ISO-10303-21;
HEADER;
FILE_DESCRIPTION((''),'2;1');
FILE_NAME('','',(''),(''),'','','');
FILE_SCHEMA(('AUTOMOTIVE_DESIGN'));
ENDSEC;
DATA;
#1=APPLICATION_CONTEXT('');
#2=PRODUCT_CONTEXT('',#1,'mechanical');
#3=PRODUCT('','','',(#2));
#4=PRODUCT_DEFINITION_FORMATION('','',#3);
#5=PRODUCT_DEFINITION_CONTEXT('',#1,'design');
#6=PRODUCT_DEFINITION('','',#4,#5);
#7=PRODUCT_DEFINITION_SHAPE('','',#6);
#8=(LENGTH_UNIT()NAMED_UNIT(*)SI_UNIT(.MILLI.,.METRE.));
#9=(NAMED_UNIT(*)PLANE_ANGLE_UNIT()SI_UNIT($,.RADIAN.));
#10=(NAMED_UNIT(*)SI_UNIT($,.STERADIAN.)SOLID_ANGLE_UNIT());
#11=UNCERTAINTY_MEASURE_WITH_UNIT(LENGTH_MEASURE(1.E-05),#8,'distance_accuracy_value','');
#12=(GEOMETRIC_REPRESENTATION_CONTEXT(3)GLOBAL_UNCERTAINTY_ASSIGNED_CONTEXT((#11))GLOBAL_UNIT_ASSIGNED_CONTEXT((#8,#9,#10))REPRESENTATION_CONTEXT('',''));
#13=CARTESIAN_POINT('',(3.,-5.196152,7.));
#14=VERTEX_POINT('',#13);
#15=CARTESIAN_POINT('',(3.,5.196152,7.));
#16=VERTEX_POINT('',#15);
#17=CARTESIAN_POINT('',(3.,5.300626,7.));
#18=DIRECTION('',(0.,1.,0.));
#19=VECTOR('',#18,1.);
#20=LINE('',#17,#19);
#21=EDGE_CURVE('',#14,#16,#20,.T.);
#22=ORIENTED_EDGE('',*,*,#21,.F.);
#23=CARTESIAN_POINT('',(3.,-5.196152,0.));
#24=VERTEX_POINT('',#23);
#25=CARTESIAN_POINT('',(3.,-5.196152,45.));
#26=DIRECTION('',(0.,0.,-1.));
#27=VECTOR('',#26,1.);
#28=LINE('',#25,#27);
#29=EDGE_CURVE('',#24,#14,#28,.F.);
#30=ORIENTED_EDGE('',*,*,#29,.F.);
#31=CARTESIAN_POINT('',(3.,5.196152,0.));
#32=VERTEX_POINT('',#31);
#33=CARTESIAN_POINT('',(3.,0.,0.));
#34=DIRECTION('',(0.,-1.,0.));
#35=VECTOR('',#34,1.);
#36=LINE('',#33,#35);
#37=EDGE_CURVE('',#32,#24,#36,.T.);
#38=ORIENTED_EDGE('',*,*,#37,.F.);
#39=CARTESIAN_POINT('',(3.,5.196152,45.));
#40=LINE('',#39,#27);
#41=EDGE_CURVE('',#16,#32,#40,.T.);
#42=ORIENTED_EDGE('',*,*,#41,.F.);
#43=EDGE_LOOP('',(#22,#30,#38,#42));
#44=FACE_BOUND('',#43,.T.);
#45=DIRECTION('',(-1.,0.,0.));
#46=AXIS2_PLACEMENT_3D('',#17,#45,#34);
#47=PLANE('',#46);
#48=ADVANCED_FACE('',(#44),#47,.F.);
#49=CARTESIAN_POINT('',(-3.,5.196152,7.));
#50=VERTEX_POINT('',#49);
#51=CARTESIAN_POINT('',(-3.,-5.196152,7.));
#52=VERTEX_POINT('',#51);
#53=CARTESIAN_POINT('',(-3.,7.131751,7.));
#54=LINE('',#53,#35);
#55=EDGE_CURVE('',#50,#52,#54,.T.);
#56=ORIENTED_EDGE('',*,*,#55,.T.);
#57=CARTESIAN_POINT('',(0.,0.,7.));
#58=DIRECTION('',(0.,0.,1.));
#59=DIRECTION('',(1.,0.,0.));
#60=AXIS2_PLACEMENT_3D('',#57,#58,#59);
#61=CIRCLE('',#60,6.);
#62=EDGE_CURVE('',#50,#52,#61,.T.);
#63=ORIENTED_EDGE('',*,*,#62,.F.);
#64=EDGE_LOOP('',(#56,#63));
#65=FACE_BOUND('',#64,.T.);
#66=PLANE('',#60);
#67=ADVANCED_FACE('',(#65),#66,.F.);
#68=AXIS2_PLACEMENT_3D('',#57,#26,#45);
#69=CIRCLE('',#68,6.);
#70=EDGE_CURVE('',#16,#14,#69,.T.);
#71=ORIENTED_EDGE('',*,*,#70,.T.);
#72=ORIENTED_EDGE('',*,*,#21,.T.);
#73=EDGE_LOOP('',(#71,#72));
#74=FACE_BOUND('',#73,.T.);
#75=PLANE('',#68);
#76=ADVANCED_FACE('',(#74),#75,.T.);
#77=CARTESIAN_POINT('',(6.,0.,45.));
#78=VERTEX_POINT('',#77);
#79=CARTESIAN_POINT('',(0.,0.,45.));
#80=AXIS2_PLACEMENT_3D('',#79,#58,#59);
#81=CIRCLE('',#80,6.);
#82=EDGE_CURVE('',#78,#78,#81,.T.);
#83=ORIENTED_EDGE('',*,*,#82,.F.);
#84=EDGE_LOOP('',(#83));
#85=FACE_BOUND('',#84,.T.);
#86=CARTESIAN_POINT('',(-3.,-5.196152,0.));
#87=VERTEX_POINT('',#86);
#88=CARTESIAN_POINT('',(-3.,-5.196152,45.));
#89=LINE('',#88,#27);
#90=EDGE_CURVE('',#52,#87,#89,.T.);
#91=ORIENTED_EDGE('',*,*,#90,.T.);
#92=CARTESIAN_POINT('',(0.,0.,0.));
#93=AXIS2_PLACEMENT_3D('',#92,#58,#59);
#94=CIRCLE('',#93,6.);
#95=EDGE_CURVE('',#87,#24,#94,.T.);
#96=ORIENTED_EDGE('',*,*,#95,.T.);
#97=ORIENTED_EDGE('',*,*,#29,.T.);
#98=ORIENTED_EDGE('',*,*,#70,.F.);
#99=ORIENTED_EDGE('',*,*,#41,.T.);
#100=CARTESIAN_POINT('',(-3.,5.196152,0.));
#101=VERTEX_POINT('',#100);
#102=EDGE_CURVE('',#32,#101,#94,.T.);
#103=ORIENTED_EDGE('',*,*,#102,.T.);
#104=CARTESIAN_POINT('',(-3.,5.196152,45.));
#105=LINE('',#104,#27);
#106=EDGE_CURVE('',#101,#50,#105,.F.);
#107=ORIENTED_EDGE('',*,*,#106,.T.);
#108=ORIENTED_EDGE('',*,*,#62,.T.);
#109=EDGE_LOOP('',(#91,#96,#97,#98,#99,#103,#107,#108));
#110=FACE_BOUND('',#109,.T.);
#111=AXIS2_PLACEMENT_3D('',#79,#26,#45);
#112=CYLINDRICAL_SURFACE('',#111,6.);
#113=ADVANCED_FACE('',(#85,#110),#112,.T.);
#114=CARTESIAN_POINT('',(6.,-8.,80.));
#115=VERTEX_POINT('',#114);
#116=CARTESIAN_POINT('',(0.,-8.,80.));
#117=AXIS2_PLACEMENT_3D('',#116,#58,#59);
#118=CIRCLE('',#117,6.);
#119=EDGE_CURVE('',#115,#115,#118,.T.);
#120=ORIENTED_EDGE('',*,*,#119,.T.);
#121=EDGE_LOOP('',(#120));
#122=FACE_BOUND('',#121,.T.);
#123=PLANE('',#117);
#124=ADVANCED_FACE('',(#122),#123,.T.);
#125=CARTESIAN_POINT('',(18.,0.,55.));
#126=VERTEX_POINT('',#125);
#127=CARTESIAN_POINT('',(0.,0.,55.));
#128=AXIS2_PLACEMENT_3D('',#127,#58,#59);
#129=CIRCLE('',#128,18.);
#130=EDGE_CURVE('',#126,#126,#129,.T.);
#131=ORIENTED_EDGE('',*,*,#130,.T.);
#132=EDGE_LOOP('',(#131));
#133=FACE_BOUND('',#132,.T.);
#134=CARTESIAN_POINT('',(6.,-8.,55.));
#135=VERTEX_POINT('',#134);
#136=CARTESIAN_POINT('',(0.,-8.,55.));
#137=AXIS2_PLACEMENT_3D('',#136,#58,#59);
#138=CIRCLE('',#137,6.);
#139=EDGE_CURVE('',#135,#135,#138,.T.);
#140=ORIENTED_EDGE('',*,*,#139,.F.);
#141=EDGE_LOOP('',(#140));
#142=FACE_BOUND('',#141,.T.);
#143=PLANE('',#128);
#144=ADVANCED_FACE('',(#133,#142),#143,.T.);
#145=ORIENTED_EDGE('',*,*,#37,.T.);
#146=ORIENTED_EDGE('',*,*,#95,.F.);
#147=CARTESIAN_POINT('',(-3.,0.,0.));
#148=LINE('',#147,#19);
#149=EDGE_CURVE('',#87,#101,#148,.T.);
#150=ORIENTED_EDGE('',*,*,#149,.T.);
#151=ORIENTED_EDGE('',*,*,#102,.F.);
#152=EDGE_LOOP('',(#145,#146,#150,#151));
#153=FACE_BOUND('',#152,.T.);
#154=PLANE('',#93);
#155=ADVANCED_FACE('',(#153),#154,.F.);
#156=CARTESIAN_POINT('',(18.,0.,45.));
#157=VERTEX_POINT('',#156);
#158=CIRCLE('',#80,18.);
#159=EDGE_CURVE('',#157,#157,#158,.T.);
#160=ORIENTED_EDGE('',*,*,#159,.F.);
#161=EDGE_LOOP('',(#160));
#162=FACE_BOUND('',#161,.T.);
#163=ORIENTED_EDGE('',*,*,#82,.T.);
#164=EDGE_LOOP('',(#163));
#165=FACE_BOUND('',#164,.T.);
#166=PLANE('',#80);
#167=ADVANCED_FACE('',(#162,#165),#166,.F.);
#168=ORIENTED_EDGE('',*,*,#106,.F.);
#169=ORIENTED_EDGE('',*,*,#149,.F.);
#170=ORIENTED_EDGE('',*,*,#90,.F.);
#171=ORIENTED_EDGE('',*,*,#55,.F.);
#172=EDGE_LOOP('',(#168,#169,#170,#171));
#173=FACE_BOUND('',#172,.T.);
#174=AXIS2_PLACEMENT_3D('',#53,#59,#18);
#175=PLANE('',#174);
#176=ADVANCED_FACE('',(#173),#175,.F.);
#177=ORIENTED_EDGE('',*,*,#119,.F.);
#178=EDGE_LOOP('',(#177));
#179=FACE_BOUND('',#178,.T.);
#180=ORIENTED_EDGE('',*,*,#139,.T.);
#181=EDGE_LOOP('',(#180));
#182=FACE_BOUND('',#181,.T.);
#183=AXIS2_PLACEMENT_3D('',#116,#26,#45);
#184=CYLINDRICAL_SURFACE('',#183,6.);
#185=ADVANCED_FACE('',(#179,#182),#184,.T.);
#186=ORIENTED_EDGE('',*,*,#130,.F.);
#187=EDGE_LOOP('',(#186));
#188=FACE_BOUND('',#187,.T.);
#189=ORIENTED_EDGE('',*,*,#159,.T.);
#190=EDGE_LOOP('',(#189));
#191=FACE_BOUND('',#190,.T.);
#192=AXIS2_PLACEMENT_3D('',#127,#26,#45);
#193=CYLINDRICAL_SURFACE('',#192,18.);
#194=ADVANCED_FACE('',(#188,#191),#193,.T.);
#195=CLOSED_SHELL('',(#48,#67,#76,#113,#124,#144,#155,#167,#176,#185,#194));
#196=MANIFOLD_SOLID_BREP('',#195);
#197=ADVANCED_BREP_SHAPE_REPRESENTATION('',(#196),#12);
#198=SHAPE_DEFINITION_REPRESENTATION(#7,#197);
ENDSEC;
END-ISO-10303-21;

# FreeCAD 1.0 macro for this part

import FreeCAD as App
import Part
import Sketcher
from FreeCAD import Vector

doc = App.newDocument("Part")
body = doc.addObject("PartDesign::Body", "Body")

# Sketch on XY plane
sketch1 = body.newObject("Sketcher::SketchObject", "Sketch")
sketch1.AttachmentSupport = (doc.getObject("XY_Plane"), [""])
sketch1.MapMode = "FlatFace"
sketch1.addGeometry(Part.Circle(Vector(0, 0, 0), Vector(0, 0, 1), 6), False)
sketch1.addConstraint(Sketcher.Constraint("Coincident", 0, 3, -1, 1))
sketch1.addConstraint(Sketcher.Constraint("Diameter", 0, 12.0))
pad1 = body.newObject("PartDesign::Pad", "Pad")
pad1.Profile = sketch1
pad1.Length = 45

# Sketch on XY plane
sketch2 = body.newObject("Sketcher::SketchObject", "Sketch001")
sketch2.AttachmentSupport = (doc.getObject("XY_Plane"), [""])
sketch2.MapMode = "FlatFace"
sketch2.AttachmentOffset = App.Placement(Vector(0, 0, 45), App.Rotation())
sketch2.addGeometry(Part.Circle(Vector(0, 0, 0), Vector(0, 0, 1), 18), False)
sketch2.addConstraint(Sketcher.Constraint("Coincident", 0, 3, -1, 1))
sketch2.addConstraint(Sketcher.Constraint("Diameter", 0, 36.0))
pad2 = body.newObject("PartDesign::Pad", "Pad001")
pad2.Profile = sketch2
pad2.Length = 10

# Sketch on XY plane
sketch3 = body.newObject("Sketcher::SketchObject", "Sketch002")
sketch3.AttachmentSupport = (doc.getObject("XY_Plane"), [""])
sketch3.MapMode = "FlatFace"
sketch3.AttachmentOffset = App.Placement(Vector(0, 0, 55), App.Rotation())
sketch3.addGeometry(Part.Circle(Vector(0, -8, 0), Vector(0, 0, 1), 6), False)
sketch3.addConstraint(Sketcher.Constraint("PointOnObject", 0, 3, -2))
sketch3.addConstraint(Sketcher.Constraint("Diameter", 0, 12.0))
sketch3.addConstraint(Sketcher.Constraint("DistanceY", 0, 3, -1, 1, 8.0))
pad3 = body.newObject("PartDesign::Pad", "Pad002")
pad3.Profile = sketch3
pad3.Length = 25

# Sketch on XY plane
sketch4 = body.newObject("Sketcher::SketchObject", "Sketch003")
sketch4.AttachmentSupport = (doc.getObject("XY_Plane"), [""])
sketch4.MapMode = "FlatFace"
sketch4.addGeometry(Part.LineSegment(Vector(7.5, 5.3, 0), Vector(7.5, -6.2, 0)), False)
sketch4.addGeometry(Part.LineSegment(Vector(7.5, -6.2, 0), Vector(3, -6.2, 0)), False)
sketch4.addGeometry(Part.LineSegment(Vector(3, -6.2, 0), Vector(3, 5.3, 0)), False)
sketch4.addGeometry(Part.LineSegment(Vector(3, 5.3, 0), Vector(7.5, 5.3, 0)), False)
sketch4.addGeometry(Part.LineSegment(Vector(-3, 7.1, 0), Vector(-3, -8.5, 0)), False)
sketch4.addGeometry(Part.LineSegment(Vector(-3, -8.5, 0), Vector(-9.1, -8.5, 0)), False)
sketch4.addGeometry(Part.LineSegment(Vector(-9.1, -8.5, 0), Vector(-9.1, 7.1, 0)), False)
sketch4.addGeometry(Part.LineSegment(Vector(-9.1, 7.1, 0), Vector(-3, 7.1, 0)), False)
sketch4.addConstraint(Sketcher.Constraint("Coincident", 0, 2, 1, 1))
sketch4.addConstraint(Sketcher.Constraint("Coincident", 1, 2, 2, 1))
sketch4.addConstraint(Sketcher.Constraint("Coincident", 2, 2, 3, 1))
sketch4.addConstraint(Sketcher.Constraint("Coincident", 3, 2, 0, 1))
sketch4.addConstraint(Sketcher.Constraint("Coincident", 4, 2, 5, 1))
sketch4.addConstraint(Sketcher.Constraint("Coincident", 5, 2, 6, 1))
sketch4.addConstraint(Sketcher.Constraint("Coincident", 6, 2, 7, 1))
sketch4.addConstraint(Sketcher.Constraint("Coincident", 7, 2, 4, 1))
sketch4.addConstraint(Sketcher.Constraint("Vertical", 0))
sketch4.addConstraint(Sketcher.Constraint("Horizontal", 1))
sketch4.addConstraint(Sketcher.Constraint("Vertical", 2))
sketch4.addConstraint(Sketcher.Constraint("Horizontal", 3))
sketch4.addConstraint(Sketcher.Constraint("Vertical", 4))
sketch4.addConstraint(Sketcher.Constraint("Horizontal", 5))
sketch4.addConstraint(Sketcher.Constraint("Vertical", 6))
sketch4.addConstraint(Sketcher.Constraint("Horizontal", 7))
sketch4.addConstraint(Sketcher.Constraint("DistanceX", -1, 1, 1, 2, 3.0))
sketch4.addConstraint(Sketcher.Constraint("DistanceX", 4, 2, -1, 1, 3.0))
sketch4.addConstraint(Sketcher.Constraint("DistanceY", 0, 2, -1, 1, 6.168001))
sketch4.addConstraint(Sketcher.Constraint("DistanceY", 4, 2, -1, 1, 8.481002))
sketch4.addConstraint(Sketcher.Constraint("DistanceX", 5, 2, 5, 1, 6.059252))
sketch4.addConstraint(Sketcher.Constraint("DistanceX", 1, 2, 1, 1, 4.529626))
sketch4.addConstraint(Sketcher.Constraint("DistanceY", 0, 2, 0, 1, 11.468627))
sketch4.addConstraint(Sketcher.Constraint("DistanceY", 4, 2, 4, 1, 15.612753))
pocket1 = body.newObject("PartDesign::Pocket", "Pocket")
pocket1.Profile = sketch4
pocket1.Length = 7
pocket1.Reversed = True

doc.recompute()
